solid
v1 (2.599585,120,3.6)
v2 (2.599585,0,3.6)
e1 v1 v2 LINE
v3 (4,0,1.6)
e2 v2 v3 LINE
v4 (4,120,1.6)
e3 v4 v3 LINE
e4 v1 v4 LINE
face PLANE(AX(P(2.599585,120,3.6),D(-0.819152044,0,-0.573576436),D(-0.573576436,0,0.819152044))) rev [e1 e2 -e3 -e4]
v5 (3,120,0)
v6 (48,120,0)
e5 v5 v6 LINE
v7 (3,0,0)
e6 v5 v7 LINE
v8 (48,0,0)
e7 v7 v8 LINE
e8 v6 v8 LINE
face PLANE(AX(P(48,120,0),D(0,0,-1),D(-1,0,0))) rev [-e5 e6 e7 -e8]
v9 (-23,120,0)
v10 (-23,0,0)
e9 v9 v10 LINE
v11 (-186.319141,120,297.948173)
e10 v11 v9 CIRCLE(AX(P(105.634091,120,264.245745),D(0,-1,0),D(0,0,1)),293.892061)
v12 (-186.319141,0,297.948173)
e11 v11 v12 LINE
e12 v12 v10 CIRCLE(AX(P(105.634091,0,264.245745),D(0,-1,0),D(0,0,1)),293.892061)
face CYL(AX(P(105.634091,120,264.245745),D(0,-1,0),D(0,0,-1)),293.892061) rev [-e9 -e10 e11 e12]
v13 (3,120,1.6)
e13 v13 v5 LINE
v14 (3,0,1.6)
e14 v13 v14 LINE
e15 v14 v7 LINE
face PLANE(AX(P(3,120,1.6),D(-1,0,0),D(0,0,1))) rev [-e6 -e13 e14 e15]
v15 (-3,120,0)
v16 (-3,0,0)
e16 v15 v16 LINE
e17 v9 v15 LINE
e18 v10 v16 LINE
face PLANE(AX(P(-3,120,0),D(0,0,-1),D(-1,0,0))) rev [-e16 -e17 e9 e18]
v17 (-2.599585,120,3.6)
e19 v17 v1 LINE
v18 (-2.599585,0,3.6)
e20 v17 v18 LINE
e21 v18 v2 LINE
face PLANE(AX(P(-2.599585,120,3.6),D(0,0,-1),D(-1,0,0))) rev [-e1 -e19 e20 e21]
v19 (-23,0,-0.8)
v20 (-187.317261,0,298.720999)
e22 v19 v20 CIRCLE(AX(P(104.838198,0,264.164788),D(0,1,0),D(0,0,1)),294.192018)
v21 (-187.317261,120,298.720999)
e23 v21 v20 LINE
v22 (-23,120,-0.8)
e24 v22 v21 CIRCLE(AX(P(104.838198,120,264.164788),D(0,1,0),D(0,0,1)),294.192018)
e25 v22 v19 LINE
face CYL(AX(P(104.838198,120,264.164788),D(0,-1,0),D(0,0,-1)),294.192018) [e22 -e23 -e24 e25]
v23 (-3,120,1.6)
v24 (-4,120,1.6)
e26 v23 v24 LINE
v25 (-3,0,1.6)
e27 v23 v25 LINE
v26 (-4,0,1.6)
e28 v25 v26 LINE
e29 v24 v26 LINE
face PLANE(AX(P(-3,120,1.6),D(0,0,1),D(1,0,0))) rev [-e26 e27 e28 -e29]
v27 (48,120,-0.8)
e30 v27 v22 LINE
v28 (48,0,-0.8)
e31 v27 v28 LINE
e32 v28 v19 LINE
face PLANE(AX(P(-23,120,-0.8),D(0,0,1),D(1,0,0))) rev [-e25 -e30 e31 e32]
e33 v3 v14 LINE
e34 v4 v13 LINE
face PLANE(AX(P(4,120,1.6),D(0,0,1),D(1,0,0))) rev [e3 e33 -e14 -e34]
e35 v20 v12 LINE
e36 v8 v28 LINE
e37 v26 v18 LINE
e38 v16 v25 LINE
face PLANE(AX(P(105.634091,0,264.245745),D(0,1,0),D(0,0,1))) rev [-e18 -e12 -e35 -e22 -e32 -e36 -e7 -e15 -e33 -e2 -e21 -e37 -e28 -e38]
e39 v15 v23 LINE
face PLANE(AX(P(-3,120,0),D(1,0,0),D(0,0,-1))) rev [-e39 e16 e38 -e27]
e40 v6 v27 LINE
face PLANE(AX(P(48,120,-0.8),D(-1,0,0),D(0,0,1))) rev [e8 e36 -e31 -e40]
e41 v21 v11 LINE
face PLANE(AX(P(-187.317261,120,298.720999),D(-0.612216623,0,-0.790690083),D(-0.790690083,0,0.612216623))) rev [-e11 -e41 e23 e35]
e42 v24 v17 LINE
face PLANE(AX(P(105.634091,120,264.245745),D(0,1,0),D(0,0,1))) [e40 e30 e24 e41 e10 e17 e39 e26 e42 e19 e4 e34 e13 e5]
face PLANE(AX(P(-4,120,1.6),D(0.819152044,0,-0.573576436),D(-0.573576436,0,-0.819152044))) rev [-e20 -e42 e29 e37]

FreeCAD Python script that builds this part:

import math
import FreeCAD as App
import Part
import Sketcher
from FreeCAD import Vector
Q = App.Units.Quantity

doc = App.newDocument("Part")
body = doc.addObject("PartDesign::Body", "Body")

sketch1 = body.newObject("Sketcher::SketchObject", "Sketch")
sketch1.AttachmentSupport = (doc.getObject("XZ_Plane"), [""])
sketch1.MapMode = "FlatFace"
sketch1.addGeometry([
    Part.LineSegment(Vector(-3, 0, 0), Vector(-3, 1.6, 0)),
    Part.LineSegment(Vector(-3, 1.6, 0), Vector(-4, 1.6, 0)),
    Part.LineSegment(Vector(-4, 1.6, 0), Vector(-2.599585, 3.6, 0)),
    Part.LineSegment(Vector(-2.599585, 3.6, 0), Vector(2.599585, 3.6, 0)),
    Part.LineSegment(Vector(2.599585, 3.6, 0), Vector(4, 1.6, 0)),
    Part.LineSegment(Vector(4, 1.6, 0), Vector(3, 1.6, 0)),
    Part.LineSegment(Vector(3, 1.6, 0), Vector(3, 0, 0)),
    Part.LineSegment(Vector(3, 0, 0), Vector(48, 0, 0)),
    Part.LineSegment(Vector(48, 0, 0), Vector(48, -0.8, 0)),
    Part.LineSegment(Vector(48, -0.8, 0), Vector(-23, -0.8, 0)),
    Part.ArcOfCircle(Part.Circle(Vector(104.838198, 264.164788, 0), Vector(0, 0, 1), 294.192018), math.radians(173.254384), math.radians(244.243973)),
    Part.LineSegment(Vector(-187.317261, 298.720999, 0), Vector(-186.319141, 297.948173, 0)),
    Part.ArcOfCircle(Part.Circle(Vector(105.634091, 264.245745, 0), Vector(0, 0, 1), 293.892061), math.radians(173.41505), math.radians(244.04331)),
    Part.LineSegment(Vector(-23, 0, 0), Vector(-3, 0, 0)),
], False)
sketch1.addConstraint([
    Sketcher.Constraint("Coincident", 0, 2, 1, 1),
    Sketcher.Constraint("Coincident", 1, 2, 2, 1),
    Sketcher.Constraint("Coincident", 2, 2, 3, 1),
    Sketcher.Constraint("Coincident", 3, 2, 4, 1),
    Sketcher.Constraint("Coincident", 4, 2, 5, 1),
    Sketcher.Constraint("Coincident", 5, 2, 6, 1),
    Sketcher.Constraint("Coincident", 6, 2, 7, 1),
    Sketcher.Constraint("Coincident", 7, 2, 8, 1),
    Sketcher.Constraint("Coincident", 8, 2, 9, 1),
    Sketcher.Constraint("Coincident", 9, 2, 10, 2),
    Sketcher.Constraint("Coincident", 10, 1, 11, 1),
    Sketcher.Constraint("Coincident", 11, 2, 12, 1),
    Sketcher.Constraint("Coincident", 12, 2, 13, 1),
    Sketcher.Constraint("Coincident", 13, 2, 0, 1),
    Sketcher.Constraint("Vertical", 0),
    Sketcher.Constraint("Horizontal", 1),
    Sketcher.Constraint("Horizontal", 3),
    Sketcher.Constraint("Horizontal", 5),
    Sketcher.Constraint("Vertical", 6),
    Sketcher.Constraint("Horizontal", 7),
    Sketcher.Constraint("Vertical", 8),
    Sketcher.Constraint("Horizontal", 9),
    Sketcher.Constraint("Horizontal", 13),
    Sketcher.Constraint("Symmetric", 6, 2, 13, 2, -1, 1),
    Sketcher.Constraint("Symmetric", 1, 2, 4, 2, -2),
    Sketcher.Constraint("PointOnObject", 6, 2, -1),
    Sketcher.Constraint("Vertical", 9, 2, 12, 2),
    Sketcher.Constraint("Equal", 2, 4),
    Sketcher.Constraint("DistanceX", 1, 2, 1, 1, 1.0),
    Sketcher.Constraint("DistanceX", 7, 1, 7, 2, 45.0),
    Sketcher.Constraint("DistanceX", 9, 2, 9, 1, 71.0),
    Sketcher.Constraint("DistanceX", 13, 1, 13, 2, 20.0),
    Sketcher.Constraint("Angle", 2, Q("55 deg")),
    Sketcher.Constraint("DistanceY", 0, 1, 0, 2, 1.6),
    Sketcher.Constraint("DistanceY", 8, 2, 8, 1, 0.8),
    Sketcher.Constraint("DistanceY", 0, 2, 2, 2, 2.0),
    Sketcher.Constraint("Radius", 10, 294.192018),
    Sketcher.Constraint("Radius", 12, 293.892061),
    Sketcher.Constraint("DistanceY", -1, 1, 10, 1, 298.720999),
    Sketcher.Constraint("Distance", 11, 1.26234),
    Sketcher.Constraint("DistanceY", -1, 1, 10, 3, 264.164788),
    Sketcher.Constraint("DistanceX", -1, 1, 12, 3, 105.634091),
])
pad1 = body.newObject("PartDesign::Pad", "Pad")
pad1.Profile = sketch1
pad1.Length = 120
pad1.Reversed = True

doc.recompute()
